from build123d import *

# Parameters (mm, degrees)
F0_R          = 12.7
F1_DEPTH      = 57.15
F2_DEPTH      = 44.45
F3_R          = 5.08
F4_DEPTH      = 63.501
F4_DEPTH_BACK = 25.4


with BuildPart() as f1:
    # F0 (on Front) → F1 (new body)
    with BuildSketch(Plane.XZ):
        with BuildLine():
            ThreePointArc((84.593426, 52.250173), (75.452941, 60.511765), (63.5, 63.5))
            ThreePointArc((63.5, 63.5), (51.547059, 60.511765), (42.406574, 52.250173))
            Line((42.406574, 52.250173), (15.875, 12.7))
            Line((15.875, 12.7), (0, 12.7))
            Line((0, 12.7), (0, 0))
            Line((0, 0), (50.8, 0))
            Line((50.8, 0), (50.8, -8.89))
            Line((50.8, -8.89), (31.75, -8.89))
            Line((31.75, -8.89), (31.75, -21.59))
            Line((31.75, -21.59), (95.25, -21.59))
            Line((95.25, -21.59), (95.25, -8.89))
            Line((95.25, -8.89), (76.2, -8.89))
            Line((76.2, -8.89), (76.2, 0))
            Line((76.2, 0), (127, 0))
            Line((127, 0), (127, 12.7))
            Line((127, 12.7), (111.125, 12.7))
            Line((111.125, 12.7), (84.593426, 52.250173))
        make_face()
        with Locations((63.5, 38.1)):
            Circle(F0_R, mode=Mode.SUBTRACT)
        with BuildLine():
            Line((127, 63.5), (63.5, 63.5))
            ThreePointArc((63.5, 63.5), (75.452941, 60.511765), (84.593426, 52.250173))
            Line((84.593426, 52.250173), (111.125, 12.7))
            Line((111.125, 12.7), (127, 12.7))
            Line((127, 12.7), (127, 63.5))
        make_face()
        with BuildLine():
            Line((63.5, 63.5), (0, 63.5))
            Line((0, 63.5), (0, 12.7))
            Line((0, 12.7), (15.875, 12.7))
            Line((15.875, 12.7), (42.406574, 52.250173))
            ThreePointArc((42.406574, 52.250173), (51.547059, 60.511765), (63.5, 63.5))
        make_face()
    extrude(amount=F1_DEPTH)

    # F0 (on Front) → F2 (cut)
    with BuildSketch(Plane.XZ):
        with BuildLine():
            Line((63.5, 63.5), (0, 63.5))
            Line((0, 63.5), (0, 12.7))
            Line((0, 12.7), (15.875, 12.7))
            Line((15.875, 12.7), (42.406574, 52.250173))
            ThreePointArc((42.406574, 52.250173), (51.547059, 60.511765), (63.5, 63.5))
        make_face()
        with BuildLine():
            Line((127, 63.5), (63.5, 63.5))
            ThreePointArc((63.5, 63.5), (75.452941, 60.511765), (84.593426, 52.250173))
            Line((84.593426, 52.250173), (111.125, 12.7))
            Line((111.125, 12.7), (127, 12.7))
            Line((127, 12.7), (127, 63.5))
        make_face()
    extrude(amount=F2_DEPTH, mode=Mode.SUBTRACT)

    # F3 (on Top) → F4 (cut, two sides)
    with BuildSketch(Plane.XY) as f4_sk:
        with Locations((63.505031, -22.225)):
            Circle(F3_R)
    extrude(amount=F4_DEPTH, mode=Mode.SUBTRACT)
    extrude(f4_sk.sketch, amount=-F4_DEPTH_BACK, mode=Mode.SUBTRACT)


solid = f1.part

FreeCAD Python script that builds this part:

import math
import FreeCAD as App
import Part
import Sketcher

V = App.Vector
Q = App.Units.Quantity

doc = App.newDocument("Part")
body = doc.addObject("PartDesign::Body", "Body")

# Sketch on XZ plane
sketch1 = doc.addObject("Sketcher::SketchObject", "Sketch")
body.addObject(sketch1)
sketch1.AttachmentSupport = (doc.XZ_Plane, [""])
sketch1.MapMode = "FlatFace"
sketch1.addGeometry([
    Part.LineSegment(V(0, 0, 0), V(51, 0, 0)),  # 0
    Part.LineSegment(V(51, 0, 0), V(51, -9, 0)),  # 1
    Part.LineSegment(V(51, -9, 0), V(32, -9, 0)),  # 2
    Part.LineSegment(V(32, -9, 0), V(32, -22, 0)),  # 3
    Part.LineSegment(V(32, -22, 0), V(95, -22, 0)),  # 4
    Part.LineSegment(V(95, -22, 0), V(95, -9, 0)),  # 5
    Part.LineSegment(V(95, -9, 0), V(76, -9, 0)),  # 6
    Part.LineSegment(V(76, -9, 0), V(76, 0, 0)),  # 7
    Part.LineSegment(V(76, 0, 0), V(127, 0, 0)),  # 8
    Part.LineSegment(V(127, 0, 0), V(127, 64, 0)),  # 9
    Part.LineSegment(V(127, 64, 0), V(0, 64, 0)),  # 10
    Part.LineSegment(V(0, 64, 0), V(0, 0, 0)),  # 11
    Part.Circle(V(64, 38, 0), V(0, 0, 1), 13),  # 12
], False)
sketch1.addConstraint([
    Sketcher.Constraint("Coincident", 0, 2, 1, 1),
    Sketcher.Constraint("Coincident", 1, 2, 2, 1),
    Sketcher.Constraint("Coincident", 2, 2, 3, 1),
    Sketcher.Constraint("Coincident", 3, 2, 4, 1),
    Sketcher.Constraint("Coincident", 4, 2, 5, 1),
    Sketcher.Constraint("Coincident", 5, 2, 6, 1),
    Sketcher.Constraint("Coincident", 6, 2, 7, 1),
    Sketcher.Constraint("Coincident", 7, 2, 8, 1),
    Sketcher.Constraint("Coincident", 8, 2, 9, 1),
    Sketcher.Constraint("Coincident", 9, 2, 10, 1),
    Sketcher.Constraint("Coincident", 10, 2, 11, 1),
    Sketcher.Constraint("Coincident", 11, 2, 0, 1),
    Sketcher.Constraint("Horizontal", 0),
    Sketcher.Constraint("Vertical", 1),
    Sketcher.Constraint("Horizontal", 2),
    Sketcher.Constraint("Vertical", 3),
    Sketcher.Constraint("Horizontal", 4),
    Sketcher.Constraint("Vertical", 5),
    Sketcher.Constraint("Horizontal", 6),
    Sketcher.Constraint("Vertical", 7),
    Sketcher.Constraint("Horizontal", 8),
    Sketcher.Constraint("Vertical", 9),
    Sketcher.Constraint("Horizontal", 10),
    Sketcher.Constraint("Vertical", 11),
    Sketcher.Constraint("Coincident", 11, 2, -1, 1),
    Sketcher.Constraint("PointOnObject", 7, 2, -1),
    Sketcher.Constraint("Horizontal", 2, 2, 5, 2),
    Sketcher.Constraint("Equal", 2, 6),
    Sketcher.Constraint("Equal", 0, 8),
    Sketcher.Constraint("Equal", 4, 9),
    Sketcher.Constraint("Diameter", 12, Q("1 in")),
    Sketcher.Constraint("DistanceX", 0, 1, 0, 2, Q("2 in")),
    Sketcher.Constraint("DistanceX", 10, 2, 10, 1, Q("5 in")),
    Sketcher.Constraint("DistanceX", 4, 1, 4, 2, Q("2.5 in")),
    Sketcher.Constraint("DistanceY", 3, 2, 3, 1, Q("0.5 in")),
    Sketcher.Constraint("DistanceY", 12, 3, 9, 2, Q("1 in")),
    Sketcher.Constraint("DistanceY", 1, 2, 1, 1, Q("0.35 in")),
    Sketcher.Constraint("DistanceX", -1, 1, 12, 3, Q("2.5 in")),
])
pad1 = doc.addObject("PartDesign::Pad", "Pad")
body.addObject(pad1)
pad1.Profile = sketch1
pad1.Length = Q("2.25 in")

# Sketch on XZ plane
sketch2 = doc.addObject("Sketcher::SketchObject", "Sketch001")
body.addObject(sketch2)
sketch2.AttachmentSupport = (doc.XZ_Plane, [""])
sketch2.MapMode = "FlatFace"
sketch2.addGeometry([
    Part.LineSegment(V(64, 64, 0), V(0, 64, 0)),  # 0
    Part.LineSegment(V(0, 64, 0), V(0, 13, 0)),  # 1
    Part.LineSegment(V(0, 13, 0), V(16, 13, 0)),  # 2
    Part.LineSegment(V(16, 13, 0), V(42, 52, 0)),  # 3
    Part.ArcOfCircle(Part.Circle(V(63, 38, 0), V(0, 0, 1), 25), math.radians(90), math.radians(146)),  # 4
    Part.LineSegment(V(127, 64, 0), V(64, 64, 0)),  # 5
    Part.ArcOfCircle(Part.Circle(V(64, 38, 0), V(0, 0, 1), 25), math.radians(34), math.radians(90)),  # 6
    Part.LineSegment(V(85, 52, 0), V(111, 13, 0)),  # 7
    Part.LineSegment(V(111, 13, 0), V(127, 13, 0)),  # 8
    Part.LineSegment(V(127, 13, 0), V(127, 64, 0)),  # 9
], False)
sketch2.addConstraint([
    Sketcher.Constraint("Coincident", 0, 2, 1, 1),
    Sketcher.Constraint("Coincident", 1, 2, 2, 1),
    Sketcher.Constraint("Coincident", 2, 2, 3, 1),
    Sketcher.Constraint("Tangent", 3, 2, 4, 2),
    Sketcher.Constraint("Tangent", 4, 1, 0, 1),
    Sketcher.Constraint("Tangent", 5, 2, 6, 2),
    Sketcher.Constraint("Tangent", 6, 1, 7, 1),
    Sketcher.Constraint("Coincident", 7, 2, 8, 1),
    Sketcher.Constraint("Coincident", 8, 2, 9, 1),
    Sketcher.Constraint("Coincident", 9, 2, 5, 1),
    Sketcher.Constraint("Horizontal", 0),
    Sketcher.Constraint("Vertical", 1),
    Sketcher.Constraint("Horizontal", 2),
    Sketcher.Constraint("Horizontal", 5),
    Sketcher.Constraint("Horizontal", 8),
    Sketcher.Constraint("Vertical", 9),
    Sketcher.Constraint("Coincident", 6, 3, 4, 3),
    Sketcher.Constraint("Equal", 4, 6),
    Sketcher.Constraint("PointOnObject", 0, 2, -2),
    Sketcher.Constraint("Horizontal", 3, 2, 6, 1),
    Sketcher.Constraint("Horizontal", 2, 2, 7, 2),
    Sketcher.Constraint("Equal", 0, 5),
    Sketcher.Constraint("Radius", 4, Q("1 in")),
    Sketcher.Constraint("DistanceY", 1, 2, 1, 1, Q("2 in")),
    Sketcher.Constraint("DistanceX", 0, 2, 0, 1, Q("2.5 in")),
    Sketcher.Constraint("DistanceY", -1, 1, 4, 3, Q("1.5 in")),
    Sketcher.Constraint("DistanceX", 2, 1, 2, 2, Q("0.625 in")),
])
pocket1 = doc.addObject("PartDesign::Pocket", "Pocket")
body.addObject(pocket1)
pocket1.Profile = sketch2
pocket1.Length = Q("1.75 in")
pocket1.Reversed = True

# Sketch on XY plane
sketch3 = doc.addObject("Sketcher::SketchObject", "Sketch002")
body.addObject(sketch3)
sketch3.AttachmentSupport = (doc.XY_Plane, [""])
sketch3.MapMode = "FlatFace"
sketch3.addGeometry(Part.Circle(V(64, -22, 0), V(0, 0, 1), 5), False)
sketch3.addConstraint([
    Sketcher.Constraint("Diameter", 0, Q("0.4 in")),
    Sketcher.Constraint("DistanceY", 0, 3, -1, 1, Q("0.875 in")),
    Sketcher.Constraint("DistanceX", -1, 1, 0, 3, 63.505031),
])
pocket2 = doc.addObject("PartDesign::Pocket", "Pocket001")
body.addObject(pocket2)
pocket2.Profile = sketch3
pocket2.Type = "ThroughAll"
pocket2.Midplane = True

doc.recompute()
